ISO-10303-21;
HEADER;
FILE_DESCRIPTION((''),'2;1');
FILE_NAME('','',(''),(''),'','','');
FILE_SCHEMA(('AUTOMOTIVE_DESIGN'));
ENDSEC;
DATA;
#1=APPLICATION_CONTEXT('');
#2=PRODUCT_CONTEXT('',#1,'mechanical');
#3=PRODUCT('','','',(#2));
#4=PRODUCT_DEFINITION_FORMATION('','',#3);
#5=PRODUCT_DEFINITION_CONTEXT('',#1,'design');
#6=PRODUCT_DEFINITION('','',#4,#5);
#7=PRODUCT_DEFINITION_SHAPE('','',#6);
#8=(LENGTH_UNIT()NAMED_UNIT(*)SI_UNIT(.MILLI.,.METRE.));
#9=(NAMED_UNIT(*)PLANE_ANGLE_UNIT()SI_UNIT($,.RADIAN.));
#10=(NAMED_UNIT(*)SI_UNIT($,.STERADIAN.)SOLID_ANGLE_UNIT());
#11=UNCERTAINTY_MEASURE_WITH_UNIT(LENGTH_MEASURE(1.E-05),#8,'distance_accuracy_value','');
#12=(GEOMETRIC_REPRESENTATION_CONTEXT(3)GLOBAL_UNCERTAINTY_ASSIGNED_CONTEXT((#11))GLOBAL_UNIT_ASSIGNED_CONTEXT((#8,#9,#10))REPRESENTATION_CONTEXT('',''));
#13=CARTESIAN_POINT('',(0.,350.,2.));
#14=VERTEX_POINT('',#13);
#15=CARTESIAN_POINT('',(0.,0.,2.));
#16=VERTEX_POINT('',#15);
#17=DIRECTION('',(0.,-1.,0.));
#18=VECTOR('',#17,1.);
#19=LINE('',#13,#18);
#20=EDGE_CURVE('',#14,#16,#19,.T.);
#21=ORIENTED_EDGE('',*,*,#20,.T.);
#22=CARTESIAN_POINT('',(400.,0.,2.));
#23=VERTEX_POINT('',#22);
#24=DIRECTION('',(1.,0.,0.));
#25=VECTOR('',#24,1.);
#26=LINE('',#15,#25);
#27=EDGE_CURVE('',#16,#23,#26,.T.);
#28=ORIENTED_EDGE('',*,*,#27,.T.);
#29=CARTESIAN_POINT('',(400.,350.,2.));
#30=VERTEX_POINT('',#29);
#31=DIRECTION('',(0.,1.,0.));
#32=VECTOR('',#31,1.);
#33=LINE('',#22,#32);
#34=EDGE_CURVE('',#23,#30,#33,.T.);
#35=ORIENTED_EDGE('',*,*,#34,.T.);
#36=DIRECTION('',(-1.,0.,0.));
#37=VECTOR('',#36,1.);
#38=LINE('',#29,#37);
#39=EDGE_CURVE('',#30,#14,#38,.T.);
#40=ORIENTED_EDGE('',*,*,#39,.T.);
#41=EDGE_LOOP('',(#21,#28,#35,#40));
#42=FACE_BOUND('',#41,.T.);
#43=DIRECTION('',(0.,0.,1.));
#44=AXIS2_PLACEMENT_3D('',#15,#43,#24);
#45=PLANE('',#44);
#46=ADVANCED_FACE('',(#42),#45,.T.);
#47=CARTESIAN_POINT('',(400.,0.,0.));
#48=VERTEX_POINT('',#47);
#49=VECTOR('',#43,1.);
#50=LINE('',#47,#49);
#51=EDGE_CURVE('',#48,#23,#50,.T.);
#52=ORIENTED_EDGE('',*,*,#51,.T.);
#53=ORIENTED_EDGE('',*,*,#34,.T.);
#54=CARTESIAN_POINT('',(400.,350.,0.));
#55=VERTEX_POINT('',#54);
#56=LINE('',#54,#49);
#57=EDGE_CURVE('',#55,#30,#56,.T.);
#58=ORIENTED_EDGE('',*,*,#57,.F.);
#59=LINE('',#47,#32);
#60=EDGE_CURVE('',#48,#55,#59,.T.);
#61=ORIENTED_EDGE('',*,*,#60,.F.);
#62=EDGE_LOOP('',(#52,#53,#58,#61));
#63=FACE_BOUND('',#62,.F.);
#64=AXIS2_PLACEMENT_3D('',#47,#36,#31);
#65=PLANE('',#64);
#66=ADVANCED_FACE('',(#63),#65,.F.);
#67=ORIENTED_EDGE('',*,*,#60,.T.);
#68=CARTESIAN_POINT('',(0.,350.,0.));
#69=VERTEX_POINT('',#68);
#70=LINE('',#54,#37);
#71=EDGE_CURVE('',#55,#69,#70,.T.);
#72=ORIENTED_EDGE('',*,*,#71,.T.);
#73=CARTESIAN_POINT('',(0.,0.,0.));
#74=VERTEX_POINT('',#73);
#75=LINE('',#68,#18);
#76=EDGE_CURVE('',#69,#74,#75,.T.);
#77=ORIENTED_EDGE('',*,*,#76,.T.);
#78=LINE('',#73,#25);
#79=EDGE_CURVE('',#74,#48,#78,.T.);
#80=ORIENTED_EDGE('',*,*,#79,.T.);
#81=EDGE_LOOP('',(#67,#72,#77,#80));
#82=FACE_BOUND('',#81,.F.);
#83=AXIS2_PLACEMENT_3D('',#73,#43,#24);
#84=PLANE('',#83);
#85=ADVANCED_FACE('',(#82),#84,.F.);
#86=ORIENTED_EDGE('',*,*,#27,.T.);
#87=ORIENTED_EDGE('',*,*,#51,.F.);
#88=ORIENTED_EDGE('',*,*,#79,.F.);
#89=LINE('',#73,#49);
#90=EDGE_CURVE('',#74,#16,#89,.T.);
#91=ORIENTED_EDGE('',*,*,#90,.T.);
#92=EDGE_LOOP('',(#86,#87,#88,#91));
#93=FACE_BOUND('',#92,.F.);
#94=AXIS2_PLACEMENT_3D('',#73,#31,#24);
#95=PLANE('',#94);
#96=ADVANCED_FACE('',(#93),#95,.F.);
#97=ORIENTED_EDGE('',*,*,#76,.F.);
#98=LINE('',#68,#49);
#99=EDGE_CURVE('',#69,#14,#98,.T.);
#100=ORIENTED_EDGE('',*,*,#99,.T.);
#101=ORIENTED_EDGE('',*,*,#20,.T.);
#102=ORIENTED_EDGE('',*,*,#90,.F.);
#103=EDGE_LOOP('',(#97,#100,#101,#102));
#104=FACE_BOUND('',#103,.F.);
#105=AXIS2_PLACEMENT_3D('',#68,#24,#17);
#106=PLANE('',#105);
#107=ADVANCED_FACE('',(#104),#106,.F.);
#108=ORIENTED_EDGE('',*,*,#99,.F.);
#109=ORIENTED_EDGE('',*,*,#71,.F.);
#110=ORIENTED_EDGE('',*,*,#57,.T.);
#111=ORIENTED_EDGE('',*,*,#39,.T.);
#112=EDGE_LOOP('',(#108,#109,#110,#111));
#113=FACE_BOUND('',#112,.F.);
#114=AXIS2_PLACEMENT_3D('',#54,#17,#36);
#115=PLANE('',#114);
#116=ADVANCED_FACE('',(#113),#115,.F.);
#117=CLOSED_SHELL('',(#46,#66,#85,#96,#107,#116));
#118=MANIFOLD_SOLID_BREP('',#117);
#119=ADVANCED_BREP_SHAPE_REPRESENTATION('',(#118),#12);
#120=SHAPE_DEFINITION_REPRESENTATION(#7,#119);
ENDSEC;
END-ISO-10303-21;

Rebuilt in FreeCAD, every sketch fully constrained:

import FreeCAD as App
import Part
import Sketcher
from FreeCAD import Vector


def add_polygon(sketch, points):
    """Adds a closed chain of lines whose ends are joined by coincident constraints."""
    first, n = sketch.GeometryCount, len(points)
    for a, b in zip(points, points[1:] + points[:1]):
        sketch.addGeometry(Part.LineSegment(App.Vector(*a, 0), App.Vector(*b, 0)), False)
    for i in range(n):
        sketch.addConstraint(Sketcher.Constraint("Coincident", first + i, 2, first + (i + 1) % n, 1))

doc = App.newDocument("Part")
body = doc.addObject("PartDesign::Body", "Body")

# Sketch on XY plane
sketch1 = body.newObject("Sketcher::SketchObject", "Sketch")
sketch1.AttachmentSupport = (doc.getObject("XY_Plane"), [""])
sketch1.MapMode = "FlatFace"
add_polygon(sketch1, [(0, 350), (0, 0), (400, 0), (400, 350)])  # lines 0-3
sketch1.addConstraint(Sketcher.Constraint("Vertical", 0))
sketch1.addConstraint(Sketcher.Constraint("Horizontal", 1))
sketch1.addConstraint(Sketcher.Constraint("Vertical", 2))
sketch1.addConstraint(Sketcher.Constraint("Horizontal", 3))
sketch1.addConstraint(Sketcher.Constraint("Coincident", 0, 2, -1, 1))
sketch1.addConstraint(Sketcher.Constraint("DistanceX", 1, 1, 1, 2, 400.0))
sketch1.addConstraint(Sketcher.Constraint("DistanceY", 0, 2, 0, 1, 350.0))
pad1 = body.newObject("PartDesign::Pad", "Pad")
pad1.Profile = sketch1
pad1.Length = 2

doc.recompute()
